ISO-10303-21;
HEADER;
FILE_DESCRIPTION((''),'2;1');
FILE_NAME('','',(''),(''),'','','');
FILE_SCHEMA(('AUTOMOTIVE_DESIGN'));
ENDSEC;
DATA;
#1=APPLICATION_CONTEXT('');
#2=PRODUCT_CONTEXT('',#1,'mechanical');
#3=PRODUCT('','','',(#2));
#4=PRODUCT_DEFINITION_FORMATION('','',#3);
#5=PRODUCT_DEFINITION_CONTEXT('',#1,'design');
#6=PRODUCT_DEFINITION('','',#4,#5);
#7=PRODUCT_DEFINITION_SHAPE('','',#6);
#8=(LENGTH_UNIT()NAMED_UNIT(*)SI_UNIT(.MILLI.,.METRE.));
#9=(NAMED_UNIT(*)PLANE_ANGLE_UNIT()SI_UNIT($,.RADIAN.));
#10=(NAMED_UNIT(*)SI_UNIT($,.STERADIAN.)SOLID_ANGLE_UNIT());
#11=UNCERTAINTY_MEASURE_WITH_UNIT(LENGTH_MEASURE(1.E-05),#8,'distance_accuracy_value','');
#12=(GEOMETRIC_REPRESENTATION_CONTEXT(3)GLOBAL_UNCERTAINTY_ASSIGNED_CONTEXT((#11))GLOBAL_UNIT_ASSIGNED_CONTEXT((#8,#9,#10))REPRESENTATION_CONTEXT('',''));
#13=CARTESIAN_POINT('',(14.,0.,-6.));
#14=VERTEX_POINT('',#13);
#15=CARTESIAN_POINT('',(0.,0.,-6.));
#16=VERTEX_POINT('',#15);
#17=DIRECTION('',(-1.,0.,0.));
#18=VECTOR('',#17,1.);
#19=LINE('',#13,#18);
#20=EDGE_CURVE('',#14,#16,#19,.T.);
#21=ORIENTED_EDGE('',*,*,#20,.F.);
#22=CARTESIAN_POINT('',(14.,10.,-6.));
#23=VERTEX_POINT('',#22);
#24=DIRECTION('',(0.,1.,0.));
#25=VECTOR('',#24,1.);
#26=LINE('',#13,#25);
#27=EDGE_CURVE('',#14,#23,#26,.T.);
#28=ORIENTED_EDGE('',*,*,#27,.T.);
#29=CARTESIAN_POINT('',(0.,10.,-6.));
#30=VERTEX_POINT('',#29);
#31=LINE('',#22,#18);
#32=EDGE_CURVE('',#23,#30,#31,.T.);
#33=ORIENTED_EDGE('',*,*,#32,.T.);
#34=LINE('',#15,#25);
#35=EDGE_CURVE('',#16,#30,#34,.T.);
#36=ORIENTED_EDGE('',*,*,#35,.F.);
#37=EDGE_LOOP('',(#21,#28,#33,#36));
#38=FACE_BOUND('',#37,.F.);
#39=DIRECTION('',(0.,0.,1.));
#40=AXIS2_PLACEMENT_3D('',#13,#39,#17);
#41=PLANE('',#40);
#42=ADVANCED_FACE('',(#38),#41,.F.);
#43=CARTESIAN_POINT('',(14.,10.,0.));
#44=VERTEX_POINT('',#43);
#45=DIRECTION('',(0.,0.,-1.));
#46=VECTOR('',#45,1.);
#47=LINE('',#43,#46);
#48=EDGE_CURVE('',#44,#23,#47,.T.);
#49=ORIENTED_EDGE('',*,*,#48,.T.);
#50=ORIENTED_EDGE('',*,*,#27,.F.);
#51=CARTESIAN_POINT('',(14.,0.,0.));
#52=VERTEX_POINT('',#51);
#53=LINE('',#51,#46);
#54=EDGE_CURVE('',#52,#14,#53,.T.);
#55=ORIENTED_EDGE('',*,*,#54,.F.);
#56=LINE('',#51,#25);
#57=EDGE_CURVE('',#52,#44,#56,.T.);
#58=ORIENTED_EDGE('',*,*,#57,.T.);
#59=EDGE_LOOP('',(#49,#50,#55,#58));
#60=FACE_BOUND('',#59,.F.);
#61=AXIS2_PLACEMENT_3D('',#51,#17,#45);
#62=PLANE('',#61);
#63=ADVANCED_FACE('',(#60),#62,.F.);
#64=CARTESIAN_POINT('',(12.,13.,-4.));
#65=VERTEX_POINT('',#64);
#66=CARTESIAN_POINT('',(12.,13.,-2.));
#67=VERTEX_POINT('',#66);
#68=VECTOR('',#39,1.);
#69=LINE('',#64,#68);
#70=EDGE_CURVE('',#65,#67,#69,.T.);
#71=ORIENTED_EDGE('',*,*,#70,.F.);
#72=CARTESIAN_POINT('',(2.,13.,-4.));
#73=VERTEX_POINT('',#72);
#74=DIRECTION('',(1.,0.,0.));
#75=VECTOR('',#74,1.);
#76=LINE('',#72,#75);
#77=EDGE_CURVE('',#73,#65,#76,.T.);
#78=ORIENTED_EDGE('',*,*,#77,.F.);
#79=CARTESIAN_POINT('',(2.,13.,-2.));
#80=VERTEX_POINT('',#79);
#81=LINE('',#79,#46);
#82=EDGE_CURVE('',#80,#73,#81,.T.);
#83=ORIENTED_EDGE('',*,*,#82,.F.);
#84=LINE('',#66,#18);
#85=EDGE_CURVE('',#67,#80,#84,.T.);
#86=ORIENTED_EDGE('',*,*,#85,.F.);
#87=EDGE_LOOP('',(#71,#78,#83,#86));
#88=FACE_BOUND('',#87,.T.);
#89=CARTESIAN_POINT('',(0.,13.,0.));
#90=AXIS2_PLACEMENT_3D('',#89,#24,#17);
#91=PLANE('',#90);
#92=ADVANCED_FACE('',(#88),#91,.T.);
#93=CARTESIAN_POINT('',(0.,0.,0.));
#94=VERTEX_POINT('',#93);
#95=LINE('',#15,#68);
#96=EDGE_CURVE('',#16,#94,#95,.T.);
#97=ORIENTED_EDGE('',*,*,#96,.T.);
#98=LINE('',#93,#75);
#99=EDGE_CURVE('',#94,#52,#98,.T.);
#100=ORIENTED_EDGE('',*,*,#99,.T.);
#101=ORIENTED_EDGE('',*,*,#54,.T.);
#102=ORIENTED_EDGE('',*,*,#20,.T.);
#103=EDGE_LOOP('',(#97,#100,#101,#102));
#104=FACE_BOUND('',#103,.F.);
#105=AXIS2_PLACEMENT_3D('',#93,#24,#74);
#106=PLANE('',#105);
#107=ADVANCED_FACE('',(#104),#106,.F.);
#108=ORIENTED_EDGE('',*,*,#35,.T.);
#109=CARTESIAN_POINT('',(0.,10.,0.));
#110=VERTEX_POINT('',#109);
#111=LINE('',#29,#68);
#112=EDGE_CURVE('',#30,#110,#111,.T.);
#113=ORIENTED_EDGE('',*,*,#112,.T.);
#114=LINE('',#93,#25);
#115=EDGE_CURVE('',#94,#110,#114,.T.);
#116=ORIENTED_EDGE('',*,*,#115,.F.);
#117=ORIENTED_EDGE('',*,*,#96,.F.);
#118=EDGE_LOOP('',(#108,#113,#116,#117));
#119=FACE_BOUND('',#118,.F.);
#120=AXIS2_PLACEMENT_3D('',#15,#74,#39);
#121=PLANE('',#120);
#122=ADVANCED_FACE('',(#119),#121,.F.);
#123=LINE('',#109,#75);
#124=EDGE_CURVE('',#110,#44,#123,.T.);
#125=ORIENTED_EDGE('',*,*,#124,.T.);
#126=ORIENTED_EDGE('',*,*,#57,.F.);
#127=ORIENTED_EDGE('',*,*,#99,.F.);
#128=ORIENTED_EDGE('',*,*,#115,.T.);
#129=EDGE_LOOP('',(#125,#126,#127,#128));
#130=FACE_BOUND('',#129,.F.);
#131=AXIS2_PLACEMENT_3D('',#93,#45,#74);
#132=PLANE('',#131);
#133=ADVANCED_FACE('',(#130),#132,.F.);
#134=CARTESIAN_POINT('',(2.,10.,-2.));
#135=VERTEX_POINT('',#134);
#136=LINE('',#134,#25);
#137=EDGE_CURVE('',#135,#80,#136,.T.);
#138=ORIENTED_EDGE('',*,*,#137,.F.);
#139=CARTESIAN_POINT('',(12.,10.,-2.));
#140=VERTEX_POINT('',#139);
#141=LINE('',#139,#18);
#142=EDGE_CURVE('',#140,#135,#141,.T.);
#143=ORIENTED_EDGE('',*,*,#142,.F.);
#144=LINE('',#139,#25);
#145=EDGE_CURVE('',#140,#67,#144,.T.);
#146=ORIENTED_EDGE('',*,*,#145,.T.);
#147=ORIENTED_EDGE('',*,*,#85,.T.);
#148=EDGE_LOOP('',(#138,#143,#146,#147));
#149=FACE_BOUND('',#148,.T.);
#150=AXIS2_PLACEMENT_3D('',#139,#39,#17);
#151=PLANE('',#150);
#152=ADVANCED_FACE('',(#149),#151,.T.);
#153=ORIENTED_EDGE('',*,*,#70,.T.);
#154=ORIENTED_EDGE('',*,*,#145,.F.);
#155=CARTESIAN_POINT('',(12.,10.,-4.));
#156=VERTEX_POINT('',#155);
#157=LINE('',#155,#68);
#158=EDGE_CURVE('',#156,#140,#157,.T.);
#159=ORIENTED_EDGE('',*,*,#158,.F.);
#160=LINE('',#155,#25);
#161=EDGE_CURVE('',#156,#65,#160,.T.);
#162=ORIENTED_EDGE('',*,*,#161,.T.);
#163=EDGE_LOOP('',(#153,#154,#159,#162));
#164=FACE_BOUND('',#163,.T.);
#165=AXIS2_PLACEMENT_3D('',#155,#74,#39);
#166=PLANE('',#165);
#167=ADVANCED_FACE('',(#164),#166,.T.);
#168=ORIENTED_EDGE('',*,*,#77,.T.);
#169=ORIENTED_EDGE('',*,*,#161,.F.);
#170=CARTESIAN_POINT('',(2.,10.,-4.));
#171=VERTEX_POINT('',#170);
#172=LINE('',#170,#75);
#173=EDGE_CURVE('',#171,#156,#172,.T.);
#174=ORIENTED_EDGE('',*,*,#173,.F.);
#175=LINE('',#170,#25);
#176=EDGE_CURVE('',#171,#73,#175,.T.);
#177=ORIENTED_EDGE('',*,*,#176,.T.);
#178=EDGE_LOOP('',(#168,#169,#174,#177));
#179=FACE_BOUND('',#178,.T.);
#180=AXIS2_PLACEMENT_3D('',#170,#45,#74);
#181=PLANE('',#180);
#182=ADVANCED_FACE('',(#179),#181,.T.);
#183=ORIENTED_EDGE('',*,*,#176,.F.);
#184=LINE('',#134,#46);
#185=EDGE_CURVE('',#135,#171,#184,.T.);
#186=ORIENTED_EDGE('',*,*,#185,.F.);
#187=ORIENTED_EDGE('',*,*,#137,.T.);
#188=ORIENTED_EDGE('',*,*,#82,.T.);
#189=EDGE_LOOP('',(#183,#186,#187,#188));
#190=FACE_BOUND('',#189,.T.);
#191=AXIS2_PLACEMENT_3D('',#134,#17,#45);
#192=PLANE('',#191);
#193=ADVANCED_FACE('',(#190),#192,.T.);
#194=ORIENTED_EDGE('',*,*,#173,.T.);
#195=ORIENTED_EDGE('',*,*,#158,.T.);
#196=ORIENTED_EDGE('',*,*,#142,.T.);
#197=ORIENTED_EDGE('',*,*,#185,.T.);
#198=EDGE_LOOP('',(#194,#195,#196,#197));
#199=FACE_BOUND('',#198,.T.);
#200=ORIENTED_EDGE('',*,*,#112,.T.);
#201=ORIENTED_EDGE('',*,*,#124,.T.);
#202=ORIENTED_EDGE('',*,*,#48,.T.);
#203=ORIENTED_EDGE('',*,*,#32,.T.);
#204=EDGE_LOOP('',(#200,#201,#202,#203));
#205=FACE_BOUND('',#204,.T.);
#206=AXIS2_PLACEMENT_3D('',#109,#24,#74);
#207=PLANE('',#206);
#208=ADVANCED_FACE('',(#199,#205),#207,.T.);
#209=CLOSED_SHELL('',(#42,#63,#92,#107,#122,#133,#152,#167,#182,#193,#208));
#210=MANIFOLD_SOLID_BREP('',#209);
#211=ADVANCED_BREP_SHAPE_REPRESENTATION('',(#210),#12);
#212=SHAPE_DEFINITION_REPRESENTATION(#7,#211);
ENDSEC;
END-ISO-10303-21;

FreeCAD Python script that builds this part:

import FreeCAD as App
import Part
import Sketcher

V = App.Vector

doc = App.newDocument("Part")
body = doc.addObject("PartDesign::Body", "Body")

sketch1 = body.newObject("Sketcher::SketchObject", "Sketch")
sketch1.AttachmentSupport = (doc.getObject("XZ_Plane"), [""])
sketch1.MapMode = "FlatFace"
sketch1.addGeometry(Part.LineSegment(V(0, -6, 0), V(0, 0, 0)), False)
sketch1.addGeometry(Part.LineSegment(V(0, 0, 0), V(14, 0, 0)), False)
sketch1.addGeometry(Part.LineSegment(V(14, 0, 0), V(14, -6, 0)), False)
sketch1.addGeometry(Part.LineSegment(V(14, -6, 0), V(0, -6, 0)), False)
sketch1.addConstraint(Sketcher.Constraint("Coincident", 0, 2, 1, 1))
sketch1.addConstraint(Sketcher.Constraint("Coincident", 1, 2, 2, 1))
sketch1.addConstraint(Sketcher.Constraint("Coincident", 2, 2, 3, 1))
sketch1.addConstraint(Sketcher.Constraint("Coincident", 3, 2, 0, 1))
sketch1.addConstraint(Sketcher.Constraint("Vertical", 0))
sketch1.addConstraint(Sketcher.Constraint("Horizontal", 1))
sketch1.addConstraint(Sketcher.Constraint("Vertical", 2))
sketch1.addConstraint(Sketcher.Constraint("Horizontal", 3))
sketch1.addConstraint(Sketcher.Constraint("Coincident", 0, 2, -1, 1))
sketch1.addConstraint(Sketcher.Constraint("DistanceX", 1, 1, 1, 2, 14.0))
sketch1.addConstraint(Sketcher.Constraint("DistanceY", 0, 1, 0, 2, 6.0))
pad1 = body.newObject("PartDesign::Pad", "Pad")
pad1.Profile = sketch1
pad1.Length = 10
pad1.Reversed = True

sketch2 = body.newObject("Sketcher::SketchObject", "Sketch001")
sketch2.AttachmentSupport = (doc.getObject("XZ_Plane"), [""])
sketch2.MapMode = "FlatFace"
sketch2.AttachmentOffset = App.Placement(V(0, 0, -10), App.Rotation())
sketch2.addGeometry(Part.LineSegment(V(12, -4, 0), V(2, -4, 0)), False)
sketch2.addGeometry(Part.LineSegment(V(2, -4, 0), V(2, -2, 0)), False)
sketch2.addGeometry(Part.LineSegment(V(2, -2, 0), V(12, -2, 0)), False)
sketch2.addGeometry(Part.LineSegment(V(12, -2, 0), V(12, -4, 0)), False)
sketch2.addConstraint(Sketcher.Constraint("Coincident", 0, 2, 1, 1))
sketch2.addConstraint(Sketcher.Constraint("Coincident", 1, 2, 2, 1))
sketch2.addConstraint(Sketcher.Constraint("Coincident", 2, 2, 3, 1))
sketch2.addConstraint(Sketcher.Constraint("Coincident", 3, 2, 0, 1))
sketch2.addConstraint(Sketcher.Constraint("Horizontal", 0))
sketch2.addConstraint(Sketcher.Constraint("Vertical", 1))
sketch2.addConstraint(Sketcher.Constraint("Horizontal", 2))
sketch2.addConstraint(Sketcher.Constraint("Vertical", 3))
sketch2.addConstraint(Sketcher.Constraint("DistanceY", 1, 1, 1, 2, 2.0))
sketch2.addConstraint(Sketcher.Constraint("DistanceX", -1, 1, 0, 2, 2.0))
sketch2.addConstraint(Sketcher.Constraint("DistanceY", 1, 2, -1, 1, 2.0))
sketch2.addConstraint(Sketcher.Constraint("DistanceX", 0, 2, 0, 1, 10.0))
pad2 = body.newObject("PartDesign::Pad", "Pad001")
pad2.Profile = sketch2
pad2.Length = 3
pad2.Reversed = True

doc.recompute()
